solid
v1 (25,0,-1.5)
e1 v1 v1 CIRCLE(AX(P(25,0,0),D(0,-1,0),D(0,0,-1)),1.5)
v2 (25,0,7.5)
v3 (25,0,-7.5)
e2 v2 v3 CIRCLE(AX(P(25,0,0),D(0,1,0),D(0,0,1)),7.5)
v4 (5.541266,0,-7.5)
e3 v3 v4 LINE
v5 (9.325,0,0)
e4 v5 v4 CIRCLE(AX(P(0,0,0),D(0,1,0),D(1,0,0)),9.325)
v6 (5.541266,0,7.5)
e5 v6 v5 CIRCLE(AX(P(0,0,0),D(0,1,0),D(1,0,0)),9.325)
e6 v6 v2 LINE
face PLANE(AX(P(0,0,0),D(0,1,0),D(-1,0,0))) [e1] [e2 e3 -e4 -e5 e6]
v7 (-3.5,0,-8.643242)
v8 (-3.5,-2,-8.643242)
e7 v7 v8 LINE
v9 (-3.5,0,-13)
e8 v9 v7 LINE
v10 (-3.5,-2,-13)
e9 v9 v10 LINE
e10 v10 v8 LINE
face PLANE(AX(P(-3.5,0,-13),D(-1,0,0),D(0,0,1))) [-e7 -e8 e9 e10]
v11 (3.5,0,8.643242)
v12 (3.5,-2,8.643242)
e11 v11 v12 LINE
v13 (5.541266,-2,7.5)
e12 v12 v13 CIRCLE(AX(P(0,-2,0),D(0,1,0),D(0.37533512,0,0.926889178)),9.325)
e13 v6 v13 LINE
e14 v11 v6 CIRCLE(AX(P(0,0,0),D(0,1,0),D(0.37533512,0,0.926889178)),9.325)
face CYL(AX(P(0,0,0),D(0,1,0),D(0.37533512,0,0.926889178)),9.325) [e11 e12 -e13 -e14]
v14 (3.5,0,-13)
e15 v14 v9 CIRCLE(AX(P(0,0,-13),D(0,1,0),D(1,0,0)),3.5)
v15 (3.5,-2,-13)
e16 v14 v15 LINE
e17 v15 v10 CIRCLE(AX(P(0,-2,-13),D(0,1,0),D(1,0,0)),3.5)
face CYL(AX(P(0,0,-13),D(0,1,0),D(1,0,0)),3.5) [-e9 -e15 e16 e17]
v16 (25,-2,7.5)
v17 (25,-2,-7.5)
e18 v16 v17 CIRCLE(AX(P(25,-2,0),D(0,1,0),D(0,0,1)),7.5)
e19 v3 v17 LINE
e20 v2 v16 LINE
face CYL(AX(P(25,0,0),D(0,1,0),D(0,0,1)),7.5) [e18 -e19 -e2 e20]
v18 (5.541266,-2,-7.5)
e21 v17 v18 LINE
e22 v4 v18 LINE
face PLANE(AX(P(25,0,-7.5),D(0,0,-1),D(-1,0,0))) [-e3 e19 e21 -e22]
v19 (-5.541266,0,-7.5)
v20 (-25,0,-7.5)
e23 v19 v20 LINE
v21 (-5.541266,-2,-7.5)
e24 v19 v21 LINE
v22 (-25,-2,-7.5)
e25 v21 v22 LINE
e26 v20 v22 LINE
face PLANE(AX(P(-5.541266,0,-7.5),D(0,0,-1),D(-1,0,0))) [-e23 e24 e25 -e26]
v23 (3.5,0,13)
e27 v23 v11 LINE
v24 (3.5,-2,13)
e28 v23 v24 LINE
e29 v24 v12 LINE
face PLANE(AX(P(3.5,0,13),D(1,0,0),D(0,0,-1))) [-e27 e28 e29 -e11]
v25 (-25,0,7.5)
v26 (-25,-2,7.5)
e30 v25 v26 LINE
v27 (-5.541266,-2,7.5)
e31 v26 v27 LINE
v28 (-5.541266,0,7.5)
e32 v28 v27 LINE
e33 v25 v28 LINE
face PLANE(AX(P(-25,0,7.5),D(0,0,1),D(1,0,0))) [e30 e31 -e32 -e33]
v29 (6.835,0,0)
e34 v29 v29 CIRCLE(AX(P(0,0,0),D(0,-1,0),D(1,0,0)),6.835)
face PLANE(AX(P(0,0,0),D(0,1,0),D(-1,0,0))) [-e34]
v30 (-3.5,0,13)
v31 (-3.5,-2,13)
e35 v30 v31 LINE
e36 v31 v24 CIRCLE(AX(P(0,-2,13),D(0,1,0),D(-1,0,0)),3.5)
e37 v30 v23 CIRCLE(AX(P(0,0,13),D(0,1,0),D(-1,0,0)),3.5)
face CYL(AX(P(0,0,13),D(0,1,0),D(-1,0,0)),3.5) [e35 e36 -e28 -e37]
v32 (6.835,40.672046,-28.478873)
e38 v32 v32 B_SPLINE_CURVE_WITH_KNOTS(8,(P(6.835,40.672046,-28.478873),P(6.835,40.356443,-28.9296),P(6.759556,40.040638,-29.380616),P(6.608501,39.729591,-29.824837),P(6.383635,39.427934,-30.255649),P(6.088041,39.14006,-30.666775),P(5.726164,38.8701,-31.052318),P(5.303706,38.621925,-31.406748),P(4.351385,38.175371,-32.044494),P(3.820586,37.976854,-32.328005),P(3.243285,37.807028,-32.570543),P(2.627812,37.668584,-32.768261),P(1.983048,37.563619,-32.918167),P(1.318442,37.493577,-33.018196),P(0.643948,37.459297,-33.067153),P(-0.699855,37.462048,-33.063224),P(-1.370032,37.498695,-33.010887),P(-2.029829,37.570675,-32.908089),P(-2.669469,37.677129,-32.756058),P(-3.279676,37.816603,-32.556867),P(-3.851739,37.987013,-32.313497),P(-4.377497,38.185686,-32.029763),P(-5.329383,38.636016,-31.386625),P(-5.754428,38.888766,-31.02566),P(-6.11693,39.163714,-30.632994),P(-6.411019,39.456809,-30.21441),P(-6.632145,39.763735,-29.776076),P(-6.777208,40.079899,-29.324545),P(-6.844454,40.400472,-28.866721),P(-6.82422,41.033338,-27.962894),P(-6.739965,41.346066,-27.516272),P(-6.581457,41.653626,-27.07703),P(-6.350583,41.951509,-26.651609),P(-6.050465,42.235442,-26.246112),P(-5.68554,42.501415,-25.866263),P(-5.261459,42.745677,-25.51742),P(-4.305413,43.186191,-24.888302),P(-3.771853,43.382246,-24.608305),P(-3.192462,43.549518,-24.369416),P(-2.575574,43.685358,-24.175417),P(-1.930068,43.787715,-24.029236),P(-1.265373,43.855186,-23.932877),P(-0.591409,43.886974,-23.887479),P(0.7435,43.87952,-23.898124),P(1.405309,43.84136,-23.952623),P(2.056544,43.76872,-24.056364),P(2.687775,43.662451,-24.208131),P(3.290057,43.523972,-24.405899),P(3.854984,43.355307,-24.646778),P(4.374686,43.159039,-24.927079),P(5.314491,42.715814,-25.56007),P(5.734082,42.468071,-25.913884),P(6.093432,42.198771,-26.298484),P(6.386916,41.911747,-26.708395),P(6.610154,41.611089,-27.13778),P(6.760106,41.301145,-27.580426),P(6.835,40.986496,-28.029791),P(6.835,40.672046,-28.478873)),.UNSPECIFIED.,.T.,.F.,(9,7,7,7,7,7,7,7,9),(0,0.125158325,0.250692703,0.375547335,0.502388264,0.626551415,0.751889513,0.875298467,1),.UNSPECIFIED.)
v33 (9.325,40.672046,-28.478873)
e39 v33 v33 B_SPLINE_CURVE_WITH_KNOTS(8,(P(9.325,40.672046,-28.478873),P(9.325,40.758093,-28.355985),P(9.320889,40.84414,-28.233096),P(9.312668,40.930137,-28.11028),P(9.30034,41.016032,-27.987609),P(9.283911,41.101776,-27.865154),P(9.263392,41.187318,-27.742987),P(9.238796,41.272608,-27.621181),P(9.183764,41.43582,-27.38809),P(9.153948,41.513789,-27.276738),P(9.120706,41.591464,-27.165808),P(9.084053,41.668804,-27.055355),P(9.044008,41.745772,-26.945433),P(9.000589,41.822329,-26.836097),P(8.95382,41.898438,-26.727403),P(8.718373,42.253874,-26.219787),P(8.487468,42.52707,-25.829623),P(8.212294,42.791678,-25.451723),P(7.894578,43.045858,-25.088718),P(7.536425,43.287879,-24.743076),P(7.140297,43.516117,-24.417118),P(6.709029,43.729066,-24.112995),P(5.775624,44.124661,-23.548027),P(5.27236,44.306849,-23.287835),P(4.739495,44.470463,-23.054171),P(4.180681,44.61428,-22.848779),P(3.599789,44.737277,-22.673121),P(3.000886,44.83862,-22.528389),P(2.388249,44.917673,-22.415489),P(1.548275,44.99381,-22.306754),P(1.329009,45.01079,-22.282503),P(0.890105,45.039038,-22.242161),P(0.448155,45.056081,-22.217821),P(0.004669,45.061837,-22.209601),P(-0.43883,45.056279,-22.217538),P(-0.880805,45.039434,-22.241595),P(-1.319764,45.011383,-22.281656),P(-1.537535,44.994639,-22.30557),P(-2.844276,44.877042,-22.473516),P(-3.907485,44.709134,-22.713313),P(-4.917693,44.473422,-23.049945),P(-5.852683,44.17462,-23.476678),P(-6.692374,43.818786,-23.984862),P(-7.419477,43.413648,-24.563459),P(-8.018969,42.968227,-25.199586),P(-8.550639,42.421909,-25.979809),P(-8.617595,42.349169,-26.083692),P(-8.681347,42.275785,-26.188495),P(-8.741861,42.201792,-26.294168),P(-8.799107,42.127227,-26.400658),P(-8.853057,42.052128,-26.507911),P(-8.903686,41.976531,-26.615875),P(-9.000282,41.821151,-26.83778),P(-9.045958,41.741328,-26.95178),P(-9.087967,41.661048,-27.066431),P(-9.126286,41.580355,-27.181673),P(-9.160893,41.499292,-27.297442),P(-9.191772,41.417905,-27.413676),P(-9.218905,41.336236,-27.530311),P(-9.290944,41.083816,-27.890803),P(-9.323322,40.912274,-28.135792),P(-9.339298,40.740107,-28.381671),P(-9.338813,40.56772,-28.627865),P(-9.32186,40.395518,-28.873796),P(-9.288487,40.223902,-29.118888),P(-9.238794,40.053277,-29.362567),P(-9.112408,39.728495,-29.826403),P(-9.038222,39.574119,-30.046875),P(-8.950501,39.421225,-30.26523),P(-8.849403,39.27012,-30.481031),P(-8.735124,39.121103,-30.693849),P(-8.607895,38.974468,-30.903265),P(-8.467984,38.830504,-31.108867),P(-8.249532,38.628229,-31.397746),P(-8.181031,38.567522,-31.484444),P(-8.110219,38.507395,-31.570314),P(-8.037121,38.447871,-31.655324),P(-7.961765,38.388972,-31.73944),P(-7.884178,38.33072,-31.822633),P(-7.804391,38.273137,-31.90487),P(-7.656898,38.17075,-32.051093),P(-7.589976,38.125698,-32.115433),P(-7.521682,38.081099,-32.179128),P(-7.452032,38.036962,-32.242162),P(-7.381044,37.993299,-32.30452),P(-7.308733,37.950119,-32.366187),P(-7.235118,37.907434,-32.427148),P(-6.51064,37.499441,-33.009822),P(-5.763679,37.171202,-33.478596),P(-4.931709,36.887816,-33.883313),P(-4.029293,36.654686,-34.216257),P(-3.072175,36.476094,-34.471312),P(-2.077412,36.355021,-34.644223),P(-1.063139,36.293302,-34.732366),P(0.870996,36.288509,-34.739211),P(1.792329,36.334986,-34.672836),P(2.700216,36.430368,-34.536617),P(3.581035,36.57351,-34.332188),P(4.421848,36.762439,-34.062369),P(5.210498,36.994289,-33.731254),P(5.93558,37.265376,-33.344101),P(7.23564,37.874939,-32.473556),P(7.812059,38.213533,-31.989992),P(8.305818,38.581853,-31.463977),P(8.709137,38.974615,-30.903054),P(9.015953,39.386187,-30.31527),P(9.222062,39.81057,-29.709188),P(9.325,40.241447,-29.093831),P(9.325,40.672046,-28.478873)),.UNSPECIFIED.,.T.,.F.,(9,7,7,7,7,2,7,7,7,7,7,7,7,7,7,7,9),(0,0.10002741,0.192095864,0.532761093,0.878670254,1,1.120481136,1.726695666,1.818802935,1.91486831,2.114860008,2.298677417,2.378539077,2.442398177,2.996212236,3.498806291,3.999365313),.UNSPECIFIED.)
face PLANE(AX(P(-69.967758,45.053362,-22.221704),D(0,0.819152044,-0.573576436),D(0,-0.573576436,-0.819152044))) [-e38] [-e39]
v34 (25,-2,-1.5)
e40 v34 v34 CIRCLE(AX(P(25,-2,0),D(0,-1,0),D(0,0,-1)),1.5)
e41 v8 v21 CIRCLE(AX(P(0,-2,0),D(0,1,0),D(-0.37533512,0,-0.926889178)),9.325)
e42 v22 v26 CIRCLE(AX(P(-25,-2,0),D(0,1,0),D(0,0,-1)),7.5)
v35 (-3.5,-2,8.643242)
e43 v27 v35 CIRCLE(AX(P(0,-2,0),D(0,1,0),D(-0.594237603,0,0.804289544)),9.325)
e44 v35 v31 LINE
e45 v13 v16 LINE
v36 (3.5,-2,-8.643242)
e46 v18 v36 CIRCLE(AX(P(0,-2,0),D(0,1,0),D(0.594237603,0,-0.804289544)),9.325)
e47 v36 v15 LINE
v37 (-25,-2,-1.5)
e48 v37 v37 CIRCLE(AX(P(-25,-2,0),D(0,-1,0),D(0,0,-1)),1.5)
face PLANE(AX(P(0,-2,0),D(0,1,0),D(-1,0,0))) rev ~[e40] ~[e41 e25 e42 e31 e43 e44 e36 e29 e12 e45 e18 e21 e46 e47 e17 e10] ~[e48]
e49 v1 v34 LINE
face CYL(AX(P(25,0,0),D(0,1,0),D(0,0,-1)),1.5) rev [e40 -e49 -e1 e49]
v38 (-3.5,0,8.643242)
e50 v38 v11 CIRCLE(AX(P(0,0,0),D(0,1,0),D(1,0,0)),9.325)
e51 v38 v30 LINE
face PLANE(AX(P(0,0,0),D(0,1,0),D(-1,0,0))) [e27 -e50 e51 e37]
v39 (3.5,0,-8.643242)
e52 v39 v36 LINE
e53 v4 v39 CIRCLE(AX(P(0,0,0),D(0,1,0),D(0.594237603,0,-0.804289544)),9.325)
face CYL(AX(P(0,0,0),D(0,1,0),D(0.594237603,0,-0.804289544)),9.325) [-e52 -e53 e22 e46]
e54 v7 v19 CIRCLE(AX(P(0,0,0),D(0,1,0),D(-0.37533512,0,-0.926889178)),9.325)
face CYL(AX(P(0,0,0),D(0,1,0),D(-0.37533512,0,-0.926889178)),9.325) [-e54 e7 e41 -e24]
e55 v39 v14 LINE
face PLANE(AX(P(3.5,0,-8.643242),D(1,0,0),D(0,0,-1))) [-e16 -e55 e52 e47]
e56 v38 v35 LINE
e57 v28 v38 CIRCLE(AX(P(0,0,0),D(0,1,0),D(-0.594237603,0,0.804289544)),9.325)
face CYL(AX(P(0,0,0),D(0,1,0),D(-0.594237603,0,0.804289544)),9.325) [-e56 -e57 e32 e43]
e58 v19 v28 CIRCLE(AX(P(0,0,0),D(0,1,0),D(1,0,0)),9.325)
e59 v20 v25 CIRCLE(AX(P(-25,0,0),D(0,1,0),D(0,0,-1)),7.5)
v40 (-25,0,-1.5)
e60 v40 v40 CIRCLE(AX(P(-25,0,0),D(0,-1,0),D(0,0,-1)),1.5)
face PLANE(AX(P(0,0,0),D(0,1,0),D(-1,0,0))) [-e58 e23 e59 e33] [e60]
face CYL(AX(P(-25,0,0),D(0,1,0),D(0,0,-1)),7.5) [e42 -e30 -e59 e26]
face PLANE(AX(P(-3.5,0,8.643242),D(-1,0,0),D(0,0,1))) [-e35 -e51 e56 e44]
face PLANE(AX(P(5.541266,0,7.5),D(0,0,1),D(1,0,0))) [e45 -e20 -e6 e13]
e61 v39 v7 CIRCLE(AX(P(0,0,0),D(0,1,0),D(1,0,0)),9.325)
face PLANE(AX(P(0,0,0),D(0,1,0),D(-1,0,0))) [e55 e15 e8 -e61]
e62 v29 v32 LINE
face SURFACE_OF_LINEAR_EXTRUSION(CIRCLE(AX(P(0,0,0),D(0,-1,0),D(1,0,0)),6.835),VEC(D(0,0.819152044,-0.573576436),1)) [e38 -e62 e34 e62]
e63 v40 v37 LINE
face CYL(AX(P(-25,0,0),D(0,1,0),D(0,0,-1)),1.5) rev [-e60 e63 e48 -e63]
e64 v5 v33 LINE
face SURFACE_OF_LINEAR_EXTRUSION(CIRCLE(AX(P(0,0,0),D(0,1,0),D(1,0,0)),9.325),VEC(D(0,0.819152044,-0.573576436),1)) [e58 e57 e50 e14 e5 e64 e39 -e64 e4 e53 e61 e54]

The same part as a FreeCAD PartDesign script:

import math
import FreeCAD as App
import Part
import Sketcher
Q = App.Units.Quantity

doc = App.newDocument("Part")
body = doc.addObject("PartDesign::Body", "Body")

# Sketch on XZ plane
sketch1 = body.newObject("Sketcher::SketchObject", "Sketch")
sketch1.AttachmentSupport = (doc.getObject("XZ_Plane"), [""])
sketch1.MapMode = "FlatFace"
sketch1.addGeometry([
    Part.Circle(App.Vector(0, 0, 0), App.Vector(0, 0, 1), 9),
    Part.Circle(App.Vector(0, 0, 0), App.Vector(0, 0, 1), 7),
], False)
sketch1.addConstraint([
    Sketcher.Constraint("Coincident", 0, 3, -1, 1),
    Sketcher.Constraint("Coincident", 1, 3, -1, 1),
    Sketcher.Constraint("Diameter", 0, Q("18.65 mm")),
    Sketcher.Constraint("Diameter", 1, Q("13.67 mm")),
])

# Sketch on an angled plane
sketch2 = body.newObject("Sketcher::SketchObject", "Sketch001")
sketch2.Placement = App.Placement(App.Vector(0, -4.390899, -6.270853), App.Rotation(App.Vector(0, -0.819152044, 0.573576436), App.Vector(0.999999999, 0, 0), App.Vector(0, 0.573576436, 0.819152044), "ZXY"))
sketch2.addGeometry(Part.LineSegment(App.Vector(-5, 0, 0), App.Vector(-60, 0, 0)), False)
sketch2.addConstraint([
    Sketcher.Constraint("Horizontal", 0),
    Sketcher.Constraint("PointOnObject", 0, 1, -1),
    Sketcher.Constraint("DistanceX", 0, 2, 0, 1, Q("55 mm")),
    Sketcher.Constraint("DistanceX", 0, 1, -1, 1, Q("5.360298 mm")),
])
doc.recompute()

additivepipe = body.newObject("PartDesign::AdditivePipe", "AdditivePipe")
additivepipe.Profile = sketch1
additivepipe.Spine = (sketch2, ["Edge1"])

# Sketch on XZ plane
sketch3 = body.newObject("Sketcher::SketchObject", "Sketch002")
sketch3.AttachmentSupport = (doc.getObject("XZ_Plane"), [""])
sketch3.MapMode = "FlatFace"
sketch3.addGeometry([
    Part.LineSegment(App.Vector(-5.5, 7.5, 0), App.Vector(-25, 7.5, 0)),  # 0
    Part.ArcOfCircle(Part.Circle(App.Vector(-25, 0, 0), App.Vector(0, 0, 1), 7.5), math.radians(90), math.radians(270)),  # 1
    Part.LineSegment(App.Vector(-25, -7.5, 0), App.Vector(-5.5, -7.5, 0)),  # 2
    Part.ArcOfCircle(Part.Circle(App.Vector(0, 0, 0), App.Vector(0, 0, 1), 9.3), math.radians(-126.46), math.radians(-112.05)),  # 3
    Part.LineSegment(App.Vector(-3.5, -8.6, 0), App.Vector(-3.5, -13, 0)),  # 4
    Part.ArcOfCircle(Part.Circle(App.Vector(0, -13, 0), App.Vector(0, 0, 1), 3.5), math.radians(180), math.radians(360)),  # 5
    Part.LineSegment(App.Vector(3.5, -13, 0), App.Vector(3.5, -8.6, 0)),  # 6
    Part.ArcOfCircle(Part.Circle(App.Vector(0, 0, 0), App.Vector(0, 0, 1), 9.3), math.radians(-67.95), math.radians(-53.54)),  # 7
    Part.LineSegment(App.Vector(5.5, -7.5, 0), App.Vector(25, -7.5, 0)),  # 8
    Part.ArcOfCircle(Part.Circle(App.Vector(25, 0, 0), App.Vector(0, 0, 1), 7.5), math.radians(-90), math.radians(90)),  # 9
    Part.LineSegment(App.Vector(25, 7.5, 0), App.Vector(5.5, 7.5, 0)),  # 10
    Part.ArcOfCircle(Part.Circle(App.Vector(0, 0, 0), App.Vector(0, 0, 1), 9.3), math.radians(53.54), math.radians(67.95)),  # 11
    Part.LineSegment(App.Vector(3.5, 8.6, 0), App.Vector(3.5, 13, 0)),  # 12
    Part.ArcOfCircle(Part.Circle(App.Vector(0, 13, 0), App.Vector(0, 0, 1), 3.5), math.radians(0), math.radians(180)),  # 13
    Part.LineSegment(App.Vector(-3.5, 13, 0), App.Vector(-3.5, 8.6, 0)),  # 14
    Part.ArcOfCircle(Part.Circle(App.Vector(0, 0, 0), App.Vector(0, 0, 1), 9.3), math.radians(112.05), math.radians(126.46)),  # 15
    Part.Circle(App.Vector(25, 0, 0), App.Vector(0, 0, 1), 1.5),  # 16
    Part.Circle(App.Vector(-25, 0, 0), App.Vector(0, 0, 1), 1.5),  # 17
], False)
sketch3.addConstraint([
    Sketcher.Constraint("Tangent", 0, 2, 1, 1),
    Sketcher.Constraint("Tangent", 1, 2, 2, 1),
    Sketcher.Constraint("Coincident", 2, 2, 3, 1),
    Sketcher.Constraint("Coincident", 3, 2, 4, 1),
    Sketcher.Constraint("Tangent", 4, 2, 5, 1),
    Sketcher.Constraint("Tangent", 5, 2, 6, 1),
    Sketcher.Constraint("Coincident", 6, 2, 7, 1),
    Sketcher.Constraint("Coincident", 7, 2, 8, 1),
    Sketcher.Constraint("Tangent", 8, 2, 9, 1),
    Sketcher.Constraint("Tangent", 9, 2, 10, 1),
    Sketcher.Constraint("Coincident", 10, 2, 11, 1),
    Sketcher.Constraint("Coincident", 11, 2, 12, 1),
    Sketcher.Constraint("Tangent", 12, 2, 13, 1),
    Sketcher.Constraint("Tangent", 13, 2, 14, 1),
    Sketcher.Constraint("Coincident", 14, 2, 15, 1),
    Sketcher.Constraint("Coincident", 15, 2, 0, 1),
    Sketcher.Constraint("Horizontal", 0),
    Sketcher.Constraint("Horizontal", 2),
    Sketcher.Constraint("Vertical", 4),
    Sketcher.Constraint("Vertical", 6),
    Sketcher.Constraint("Horizontal", 8),
    Sketcher.Constraint("Horizontal", 10),
    Sketcher.Constraint("Vertical", 12),
    Sketcher.Constraint("Vertical", 14),
    Sketcher.Constraint("Coincident", 3, 3, -1, 1),
    Sketcher.Constraint("Coincident", 7, 3, -1, 1),
    Sketcher.Constraint("Coincident", 11, 3, -1, 1),
    Sketcher.Constraint("Coincident", 15, 3, -1, 1),
    Sketcher.Constraint("Coincident", 16, 3, 9, 3),
    Sketcher.Constraint("Coincident", 17, 3, 1, 3),
    Sketcher.Constraint("Equal", 3, 7),
    Sketcher.Constraint("Equal", 1, 9),
    Sketcher.Constraint("Equal", 7, 11),
    Sketcher.Constraint("Equal", 5, 13),
    Sketcher.Constraint("Equal", 11, 15),
    Sketcher.Constraint("Equal", 16, 17),
    Sketcher.Constraint("Symmetric", 1, 3, 9, 3, -1, 1),
    Sketcher.Constraint("Symmetric", 5, 3, 13, 3, -1, 1),
    Sketcher.Constraint("PointOnObject", 1, 3, -1),
    Sketcher.Constraint("PointOnObject", 5, 3, -2),
    Sketcher.Constraint("Diameter", 16, Q("3 mm")),
    Sketcher.Constraint("Radius", 1, Q("7.5 mm")),
    Sketcher.Constraint("Radius", 5, Q("3.5 mm")),
    Sketcher.Constraint("DistanceX", 1, 3, -1, 1, Q("25 mm")),
    Sketcher.Constraint("DistanceY", 5, 3, -1, 1, Q("13 mm")),
    Sketcher.Constraint("Radius", 3, Q("9.325 mm")),
])
pad1 = body.newObject("PartDesign::Pad", "Pad")
pad1.Profile = sketch3
pad1.Length = 2

# Sketch on YZ plane
sketch4 = body.newObject("Sketcher::SketchObject", "Sketch003")
sketch4.AttachmentSupport = (doc.getObject("YZ_Plane"), [""])
sketch4.MapMode = "FlatFace"
sketch4.addGeometry([
    Part.LineSegment(App.Vector(45, -22, 0), App.Vector(32, -41, 0)),
    Part.LineSegment(App.Vector(32, -41, 0), App.Vector(45, -41, 0)),
    Part.LineSegment(App.Vector(45, -41, 0), App.Vector(45, -22, 0)),
], False)
sketch4.addConstraint([
    Sketcher.Constraint("Coincident", 0, 2, 1, 1),
    Sketcher.Constraint("Coincident", 1, 2, 2, 1),
    Sketcher.Constraint("Coincident", 2, 2, 0, 1),
    Sketcher.Constraint("Horizontal", 1),
    Sketcher.Constraint("Vertical", 2),
    Sketcher.Constraint("Angle", 0, Q("-125 deg")),
    Sketcher.Constraint("DistanceY", 2, 1, 2, 2, Q("18.65 mm")),
    Sketcher.Constraint("DistanceX", -1, 1, 0, 2, Q("31.994492 mm")),
    Sketcher.Constraint("DistanceY", 0, 2, -1, 1, Q("40.871704 mm")),
])
pocket1 = body.newObject("PartDesign::Pocket", "Pocket")
pocket1.Profile = sketch4
pocket1.Type = "ThroughAll"
pocket1.Midplane = True

doc.recompute()
